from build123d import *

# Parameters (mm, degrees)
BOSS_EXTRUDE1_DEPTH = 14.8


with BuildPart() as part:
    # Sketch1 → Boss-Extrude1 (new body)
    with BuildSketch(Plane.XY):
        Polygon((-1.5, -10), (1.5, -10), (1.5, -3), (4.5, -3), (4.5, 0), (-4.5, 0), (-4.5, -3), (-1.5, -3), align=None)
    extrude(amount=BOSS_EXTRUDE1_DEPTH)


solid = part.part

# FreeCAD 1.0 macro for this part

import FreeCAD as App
import Part
import Sketcher
from FreeCAD import Vector
Q = App.Units.Quantity

doc = App.newDocument("Part")
body = doc.addObject("PartDesign::Body", "Body")

# Sketch on XY plane
sketch1 = body.newObject("Sketcher::SketchObject", "Sketch")
sketch1.AttachmentSupport = (doc.getObject("XY_Plane"), [""])
sketch1.MapMode = "FlatFace"
sketch1.addGeometry([
    Part.LineSegment(Vector(-1.5, -10, 0), Vector(1.5, -10, 0)),  # 0
    Part.LineSegment(Vector(1.5, -10, 0), Vector(1.5, -3, 0)),  # 1
    Part.LineSegment(Vector(1.5, -3, 0), Vector(4.5, -3, 0)),  # 2
    Part.LineSegment(Vector(4.5, -3, 0), Vector(4.5, 0, 0)),  # 3
    Part.LineSegment(Vector(4.5, 0, 0), Vector(-4.5, 0, 0)),  # 4
    Part.LineSegment(Vector(-4.5, 0, 0), Vector(-4.5, -3, 0)),  # 5
    Part.LineSegment(Vector(-4.5, -3, 0), Vector(-1.5, -3, 0)),  # 6
    Part.LineSegment(Vector(-1.5, -3, 0), Vector(-1.5, -10, 0)),  # 7
], False)
sketch1.addConstraint([
    Sketcher.Constraint("Coincident", 0, 2, 1, 1),
    Sketcher.Constraint("Coincident", 1, 2, 2, 1),
    Sketcher.Constraint("Coincident", 2, 2, 3, 1),
    Sketcher.Constraint("Coincident", 3, 2, 4, 1),
    Sketcher.Constraint("Coincident", 4, 2, 5, 1),
    Sketcher.Constraint("Coincident", 5, 2, 6, 1),
    Sketcher.Constraint("Coincident", 6, 2, 7, 1),
    Sketcher.Constraint("Coincident", 7, 2, 0, 1),
    Sketcher.Constraint("Horizontal", 0),
    Sketcher.Constraint("Vertical", 1),
    Sketcher.Constraint("Horizontal", 2),
    Sketcher.Constraint("Vertical", 3),
    Sketcher.Constraint("Horizontal", 4),
    Sketcher.Constraint("Vertical", 5),
    Sketcher.Constraint("Horizontal", 6),
    Sketcher.Constraint("Vertical", 7),
    Sketcher.Constraint("Symmetric", 3, 2, 4, 2, -1, 1),
    Sketcher.Constraint("Symmetric", 1, 2, 6, 2, -2),
    Sketcher.Constraint("Equal", 0, 2),
    Sketcher.Constraint("Equal", 6, 3),
    Sketcher.Constraint("DistanceX", 0, 1, 0, 2, Q("3 mm")),
    Sketcher.Constraint("DistanceY", 1, 1, 1, 2, Q("7 mm")),
])
pad1 = body.newObject("PartDesign::Pad", "Pad")
pad1.Profile = sketch1
pad1.Length = 14.8

doc.recompute()
